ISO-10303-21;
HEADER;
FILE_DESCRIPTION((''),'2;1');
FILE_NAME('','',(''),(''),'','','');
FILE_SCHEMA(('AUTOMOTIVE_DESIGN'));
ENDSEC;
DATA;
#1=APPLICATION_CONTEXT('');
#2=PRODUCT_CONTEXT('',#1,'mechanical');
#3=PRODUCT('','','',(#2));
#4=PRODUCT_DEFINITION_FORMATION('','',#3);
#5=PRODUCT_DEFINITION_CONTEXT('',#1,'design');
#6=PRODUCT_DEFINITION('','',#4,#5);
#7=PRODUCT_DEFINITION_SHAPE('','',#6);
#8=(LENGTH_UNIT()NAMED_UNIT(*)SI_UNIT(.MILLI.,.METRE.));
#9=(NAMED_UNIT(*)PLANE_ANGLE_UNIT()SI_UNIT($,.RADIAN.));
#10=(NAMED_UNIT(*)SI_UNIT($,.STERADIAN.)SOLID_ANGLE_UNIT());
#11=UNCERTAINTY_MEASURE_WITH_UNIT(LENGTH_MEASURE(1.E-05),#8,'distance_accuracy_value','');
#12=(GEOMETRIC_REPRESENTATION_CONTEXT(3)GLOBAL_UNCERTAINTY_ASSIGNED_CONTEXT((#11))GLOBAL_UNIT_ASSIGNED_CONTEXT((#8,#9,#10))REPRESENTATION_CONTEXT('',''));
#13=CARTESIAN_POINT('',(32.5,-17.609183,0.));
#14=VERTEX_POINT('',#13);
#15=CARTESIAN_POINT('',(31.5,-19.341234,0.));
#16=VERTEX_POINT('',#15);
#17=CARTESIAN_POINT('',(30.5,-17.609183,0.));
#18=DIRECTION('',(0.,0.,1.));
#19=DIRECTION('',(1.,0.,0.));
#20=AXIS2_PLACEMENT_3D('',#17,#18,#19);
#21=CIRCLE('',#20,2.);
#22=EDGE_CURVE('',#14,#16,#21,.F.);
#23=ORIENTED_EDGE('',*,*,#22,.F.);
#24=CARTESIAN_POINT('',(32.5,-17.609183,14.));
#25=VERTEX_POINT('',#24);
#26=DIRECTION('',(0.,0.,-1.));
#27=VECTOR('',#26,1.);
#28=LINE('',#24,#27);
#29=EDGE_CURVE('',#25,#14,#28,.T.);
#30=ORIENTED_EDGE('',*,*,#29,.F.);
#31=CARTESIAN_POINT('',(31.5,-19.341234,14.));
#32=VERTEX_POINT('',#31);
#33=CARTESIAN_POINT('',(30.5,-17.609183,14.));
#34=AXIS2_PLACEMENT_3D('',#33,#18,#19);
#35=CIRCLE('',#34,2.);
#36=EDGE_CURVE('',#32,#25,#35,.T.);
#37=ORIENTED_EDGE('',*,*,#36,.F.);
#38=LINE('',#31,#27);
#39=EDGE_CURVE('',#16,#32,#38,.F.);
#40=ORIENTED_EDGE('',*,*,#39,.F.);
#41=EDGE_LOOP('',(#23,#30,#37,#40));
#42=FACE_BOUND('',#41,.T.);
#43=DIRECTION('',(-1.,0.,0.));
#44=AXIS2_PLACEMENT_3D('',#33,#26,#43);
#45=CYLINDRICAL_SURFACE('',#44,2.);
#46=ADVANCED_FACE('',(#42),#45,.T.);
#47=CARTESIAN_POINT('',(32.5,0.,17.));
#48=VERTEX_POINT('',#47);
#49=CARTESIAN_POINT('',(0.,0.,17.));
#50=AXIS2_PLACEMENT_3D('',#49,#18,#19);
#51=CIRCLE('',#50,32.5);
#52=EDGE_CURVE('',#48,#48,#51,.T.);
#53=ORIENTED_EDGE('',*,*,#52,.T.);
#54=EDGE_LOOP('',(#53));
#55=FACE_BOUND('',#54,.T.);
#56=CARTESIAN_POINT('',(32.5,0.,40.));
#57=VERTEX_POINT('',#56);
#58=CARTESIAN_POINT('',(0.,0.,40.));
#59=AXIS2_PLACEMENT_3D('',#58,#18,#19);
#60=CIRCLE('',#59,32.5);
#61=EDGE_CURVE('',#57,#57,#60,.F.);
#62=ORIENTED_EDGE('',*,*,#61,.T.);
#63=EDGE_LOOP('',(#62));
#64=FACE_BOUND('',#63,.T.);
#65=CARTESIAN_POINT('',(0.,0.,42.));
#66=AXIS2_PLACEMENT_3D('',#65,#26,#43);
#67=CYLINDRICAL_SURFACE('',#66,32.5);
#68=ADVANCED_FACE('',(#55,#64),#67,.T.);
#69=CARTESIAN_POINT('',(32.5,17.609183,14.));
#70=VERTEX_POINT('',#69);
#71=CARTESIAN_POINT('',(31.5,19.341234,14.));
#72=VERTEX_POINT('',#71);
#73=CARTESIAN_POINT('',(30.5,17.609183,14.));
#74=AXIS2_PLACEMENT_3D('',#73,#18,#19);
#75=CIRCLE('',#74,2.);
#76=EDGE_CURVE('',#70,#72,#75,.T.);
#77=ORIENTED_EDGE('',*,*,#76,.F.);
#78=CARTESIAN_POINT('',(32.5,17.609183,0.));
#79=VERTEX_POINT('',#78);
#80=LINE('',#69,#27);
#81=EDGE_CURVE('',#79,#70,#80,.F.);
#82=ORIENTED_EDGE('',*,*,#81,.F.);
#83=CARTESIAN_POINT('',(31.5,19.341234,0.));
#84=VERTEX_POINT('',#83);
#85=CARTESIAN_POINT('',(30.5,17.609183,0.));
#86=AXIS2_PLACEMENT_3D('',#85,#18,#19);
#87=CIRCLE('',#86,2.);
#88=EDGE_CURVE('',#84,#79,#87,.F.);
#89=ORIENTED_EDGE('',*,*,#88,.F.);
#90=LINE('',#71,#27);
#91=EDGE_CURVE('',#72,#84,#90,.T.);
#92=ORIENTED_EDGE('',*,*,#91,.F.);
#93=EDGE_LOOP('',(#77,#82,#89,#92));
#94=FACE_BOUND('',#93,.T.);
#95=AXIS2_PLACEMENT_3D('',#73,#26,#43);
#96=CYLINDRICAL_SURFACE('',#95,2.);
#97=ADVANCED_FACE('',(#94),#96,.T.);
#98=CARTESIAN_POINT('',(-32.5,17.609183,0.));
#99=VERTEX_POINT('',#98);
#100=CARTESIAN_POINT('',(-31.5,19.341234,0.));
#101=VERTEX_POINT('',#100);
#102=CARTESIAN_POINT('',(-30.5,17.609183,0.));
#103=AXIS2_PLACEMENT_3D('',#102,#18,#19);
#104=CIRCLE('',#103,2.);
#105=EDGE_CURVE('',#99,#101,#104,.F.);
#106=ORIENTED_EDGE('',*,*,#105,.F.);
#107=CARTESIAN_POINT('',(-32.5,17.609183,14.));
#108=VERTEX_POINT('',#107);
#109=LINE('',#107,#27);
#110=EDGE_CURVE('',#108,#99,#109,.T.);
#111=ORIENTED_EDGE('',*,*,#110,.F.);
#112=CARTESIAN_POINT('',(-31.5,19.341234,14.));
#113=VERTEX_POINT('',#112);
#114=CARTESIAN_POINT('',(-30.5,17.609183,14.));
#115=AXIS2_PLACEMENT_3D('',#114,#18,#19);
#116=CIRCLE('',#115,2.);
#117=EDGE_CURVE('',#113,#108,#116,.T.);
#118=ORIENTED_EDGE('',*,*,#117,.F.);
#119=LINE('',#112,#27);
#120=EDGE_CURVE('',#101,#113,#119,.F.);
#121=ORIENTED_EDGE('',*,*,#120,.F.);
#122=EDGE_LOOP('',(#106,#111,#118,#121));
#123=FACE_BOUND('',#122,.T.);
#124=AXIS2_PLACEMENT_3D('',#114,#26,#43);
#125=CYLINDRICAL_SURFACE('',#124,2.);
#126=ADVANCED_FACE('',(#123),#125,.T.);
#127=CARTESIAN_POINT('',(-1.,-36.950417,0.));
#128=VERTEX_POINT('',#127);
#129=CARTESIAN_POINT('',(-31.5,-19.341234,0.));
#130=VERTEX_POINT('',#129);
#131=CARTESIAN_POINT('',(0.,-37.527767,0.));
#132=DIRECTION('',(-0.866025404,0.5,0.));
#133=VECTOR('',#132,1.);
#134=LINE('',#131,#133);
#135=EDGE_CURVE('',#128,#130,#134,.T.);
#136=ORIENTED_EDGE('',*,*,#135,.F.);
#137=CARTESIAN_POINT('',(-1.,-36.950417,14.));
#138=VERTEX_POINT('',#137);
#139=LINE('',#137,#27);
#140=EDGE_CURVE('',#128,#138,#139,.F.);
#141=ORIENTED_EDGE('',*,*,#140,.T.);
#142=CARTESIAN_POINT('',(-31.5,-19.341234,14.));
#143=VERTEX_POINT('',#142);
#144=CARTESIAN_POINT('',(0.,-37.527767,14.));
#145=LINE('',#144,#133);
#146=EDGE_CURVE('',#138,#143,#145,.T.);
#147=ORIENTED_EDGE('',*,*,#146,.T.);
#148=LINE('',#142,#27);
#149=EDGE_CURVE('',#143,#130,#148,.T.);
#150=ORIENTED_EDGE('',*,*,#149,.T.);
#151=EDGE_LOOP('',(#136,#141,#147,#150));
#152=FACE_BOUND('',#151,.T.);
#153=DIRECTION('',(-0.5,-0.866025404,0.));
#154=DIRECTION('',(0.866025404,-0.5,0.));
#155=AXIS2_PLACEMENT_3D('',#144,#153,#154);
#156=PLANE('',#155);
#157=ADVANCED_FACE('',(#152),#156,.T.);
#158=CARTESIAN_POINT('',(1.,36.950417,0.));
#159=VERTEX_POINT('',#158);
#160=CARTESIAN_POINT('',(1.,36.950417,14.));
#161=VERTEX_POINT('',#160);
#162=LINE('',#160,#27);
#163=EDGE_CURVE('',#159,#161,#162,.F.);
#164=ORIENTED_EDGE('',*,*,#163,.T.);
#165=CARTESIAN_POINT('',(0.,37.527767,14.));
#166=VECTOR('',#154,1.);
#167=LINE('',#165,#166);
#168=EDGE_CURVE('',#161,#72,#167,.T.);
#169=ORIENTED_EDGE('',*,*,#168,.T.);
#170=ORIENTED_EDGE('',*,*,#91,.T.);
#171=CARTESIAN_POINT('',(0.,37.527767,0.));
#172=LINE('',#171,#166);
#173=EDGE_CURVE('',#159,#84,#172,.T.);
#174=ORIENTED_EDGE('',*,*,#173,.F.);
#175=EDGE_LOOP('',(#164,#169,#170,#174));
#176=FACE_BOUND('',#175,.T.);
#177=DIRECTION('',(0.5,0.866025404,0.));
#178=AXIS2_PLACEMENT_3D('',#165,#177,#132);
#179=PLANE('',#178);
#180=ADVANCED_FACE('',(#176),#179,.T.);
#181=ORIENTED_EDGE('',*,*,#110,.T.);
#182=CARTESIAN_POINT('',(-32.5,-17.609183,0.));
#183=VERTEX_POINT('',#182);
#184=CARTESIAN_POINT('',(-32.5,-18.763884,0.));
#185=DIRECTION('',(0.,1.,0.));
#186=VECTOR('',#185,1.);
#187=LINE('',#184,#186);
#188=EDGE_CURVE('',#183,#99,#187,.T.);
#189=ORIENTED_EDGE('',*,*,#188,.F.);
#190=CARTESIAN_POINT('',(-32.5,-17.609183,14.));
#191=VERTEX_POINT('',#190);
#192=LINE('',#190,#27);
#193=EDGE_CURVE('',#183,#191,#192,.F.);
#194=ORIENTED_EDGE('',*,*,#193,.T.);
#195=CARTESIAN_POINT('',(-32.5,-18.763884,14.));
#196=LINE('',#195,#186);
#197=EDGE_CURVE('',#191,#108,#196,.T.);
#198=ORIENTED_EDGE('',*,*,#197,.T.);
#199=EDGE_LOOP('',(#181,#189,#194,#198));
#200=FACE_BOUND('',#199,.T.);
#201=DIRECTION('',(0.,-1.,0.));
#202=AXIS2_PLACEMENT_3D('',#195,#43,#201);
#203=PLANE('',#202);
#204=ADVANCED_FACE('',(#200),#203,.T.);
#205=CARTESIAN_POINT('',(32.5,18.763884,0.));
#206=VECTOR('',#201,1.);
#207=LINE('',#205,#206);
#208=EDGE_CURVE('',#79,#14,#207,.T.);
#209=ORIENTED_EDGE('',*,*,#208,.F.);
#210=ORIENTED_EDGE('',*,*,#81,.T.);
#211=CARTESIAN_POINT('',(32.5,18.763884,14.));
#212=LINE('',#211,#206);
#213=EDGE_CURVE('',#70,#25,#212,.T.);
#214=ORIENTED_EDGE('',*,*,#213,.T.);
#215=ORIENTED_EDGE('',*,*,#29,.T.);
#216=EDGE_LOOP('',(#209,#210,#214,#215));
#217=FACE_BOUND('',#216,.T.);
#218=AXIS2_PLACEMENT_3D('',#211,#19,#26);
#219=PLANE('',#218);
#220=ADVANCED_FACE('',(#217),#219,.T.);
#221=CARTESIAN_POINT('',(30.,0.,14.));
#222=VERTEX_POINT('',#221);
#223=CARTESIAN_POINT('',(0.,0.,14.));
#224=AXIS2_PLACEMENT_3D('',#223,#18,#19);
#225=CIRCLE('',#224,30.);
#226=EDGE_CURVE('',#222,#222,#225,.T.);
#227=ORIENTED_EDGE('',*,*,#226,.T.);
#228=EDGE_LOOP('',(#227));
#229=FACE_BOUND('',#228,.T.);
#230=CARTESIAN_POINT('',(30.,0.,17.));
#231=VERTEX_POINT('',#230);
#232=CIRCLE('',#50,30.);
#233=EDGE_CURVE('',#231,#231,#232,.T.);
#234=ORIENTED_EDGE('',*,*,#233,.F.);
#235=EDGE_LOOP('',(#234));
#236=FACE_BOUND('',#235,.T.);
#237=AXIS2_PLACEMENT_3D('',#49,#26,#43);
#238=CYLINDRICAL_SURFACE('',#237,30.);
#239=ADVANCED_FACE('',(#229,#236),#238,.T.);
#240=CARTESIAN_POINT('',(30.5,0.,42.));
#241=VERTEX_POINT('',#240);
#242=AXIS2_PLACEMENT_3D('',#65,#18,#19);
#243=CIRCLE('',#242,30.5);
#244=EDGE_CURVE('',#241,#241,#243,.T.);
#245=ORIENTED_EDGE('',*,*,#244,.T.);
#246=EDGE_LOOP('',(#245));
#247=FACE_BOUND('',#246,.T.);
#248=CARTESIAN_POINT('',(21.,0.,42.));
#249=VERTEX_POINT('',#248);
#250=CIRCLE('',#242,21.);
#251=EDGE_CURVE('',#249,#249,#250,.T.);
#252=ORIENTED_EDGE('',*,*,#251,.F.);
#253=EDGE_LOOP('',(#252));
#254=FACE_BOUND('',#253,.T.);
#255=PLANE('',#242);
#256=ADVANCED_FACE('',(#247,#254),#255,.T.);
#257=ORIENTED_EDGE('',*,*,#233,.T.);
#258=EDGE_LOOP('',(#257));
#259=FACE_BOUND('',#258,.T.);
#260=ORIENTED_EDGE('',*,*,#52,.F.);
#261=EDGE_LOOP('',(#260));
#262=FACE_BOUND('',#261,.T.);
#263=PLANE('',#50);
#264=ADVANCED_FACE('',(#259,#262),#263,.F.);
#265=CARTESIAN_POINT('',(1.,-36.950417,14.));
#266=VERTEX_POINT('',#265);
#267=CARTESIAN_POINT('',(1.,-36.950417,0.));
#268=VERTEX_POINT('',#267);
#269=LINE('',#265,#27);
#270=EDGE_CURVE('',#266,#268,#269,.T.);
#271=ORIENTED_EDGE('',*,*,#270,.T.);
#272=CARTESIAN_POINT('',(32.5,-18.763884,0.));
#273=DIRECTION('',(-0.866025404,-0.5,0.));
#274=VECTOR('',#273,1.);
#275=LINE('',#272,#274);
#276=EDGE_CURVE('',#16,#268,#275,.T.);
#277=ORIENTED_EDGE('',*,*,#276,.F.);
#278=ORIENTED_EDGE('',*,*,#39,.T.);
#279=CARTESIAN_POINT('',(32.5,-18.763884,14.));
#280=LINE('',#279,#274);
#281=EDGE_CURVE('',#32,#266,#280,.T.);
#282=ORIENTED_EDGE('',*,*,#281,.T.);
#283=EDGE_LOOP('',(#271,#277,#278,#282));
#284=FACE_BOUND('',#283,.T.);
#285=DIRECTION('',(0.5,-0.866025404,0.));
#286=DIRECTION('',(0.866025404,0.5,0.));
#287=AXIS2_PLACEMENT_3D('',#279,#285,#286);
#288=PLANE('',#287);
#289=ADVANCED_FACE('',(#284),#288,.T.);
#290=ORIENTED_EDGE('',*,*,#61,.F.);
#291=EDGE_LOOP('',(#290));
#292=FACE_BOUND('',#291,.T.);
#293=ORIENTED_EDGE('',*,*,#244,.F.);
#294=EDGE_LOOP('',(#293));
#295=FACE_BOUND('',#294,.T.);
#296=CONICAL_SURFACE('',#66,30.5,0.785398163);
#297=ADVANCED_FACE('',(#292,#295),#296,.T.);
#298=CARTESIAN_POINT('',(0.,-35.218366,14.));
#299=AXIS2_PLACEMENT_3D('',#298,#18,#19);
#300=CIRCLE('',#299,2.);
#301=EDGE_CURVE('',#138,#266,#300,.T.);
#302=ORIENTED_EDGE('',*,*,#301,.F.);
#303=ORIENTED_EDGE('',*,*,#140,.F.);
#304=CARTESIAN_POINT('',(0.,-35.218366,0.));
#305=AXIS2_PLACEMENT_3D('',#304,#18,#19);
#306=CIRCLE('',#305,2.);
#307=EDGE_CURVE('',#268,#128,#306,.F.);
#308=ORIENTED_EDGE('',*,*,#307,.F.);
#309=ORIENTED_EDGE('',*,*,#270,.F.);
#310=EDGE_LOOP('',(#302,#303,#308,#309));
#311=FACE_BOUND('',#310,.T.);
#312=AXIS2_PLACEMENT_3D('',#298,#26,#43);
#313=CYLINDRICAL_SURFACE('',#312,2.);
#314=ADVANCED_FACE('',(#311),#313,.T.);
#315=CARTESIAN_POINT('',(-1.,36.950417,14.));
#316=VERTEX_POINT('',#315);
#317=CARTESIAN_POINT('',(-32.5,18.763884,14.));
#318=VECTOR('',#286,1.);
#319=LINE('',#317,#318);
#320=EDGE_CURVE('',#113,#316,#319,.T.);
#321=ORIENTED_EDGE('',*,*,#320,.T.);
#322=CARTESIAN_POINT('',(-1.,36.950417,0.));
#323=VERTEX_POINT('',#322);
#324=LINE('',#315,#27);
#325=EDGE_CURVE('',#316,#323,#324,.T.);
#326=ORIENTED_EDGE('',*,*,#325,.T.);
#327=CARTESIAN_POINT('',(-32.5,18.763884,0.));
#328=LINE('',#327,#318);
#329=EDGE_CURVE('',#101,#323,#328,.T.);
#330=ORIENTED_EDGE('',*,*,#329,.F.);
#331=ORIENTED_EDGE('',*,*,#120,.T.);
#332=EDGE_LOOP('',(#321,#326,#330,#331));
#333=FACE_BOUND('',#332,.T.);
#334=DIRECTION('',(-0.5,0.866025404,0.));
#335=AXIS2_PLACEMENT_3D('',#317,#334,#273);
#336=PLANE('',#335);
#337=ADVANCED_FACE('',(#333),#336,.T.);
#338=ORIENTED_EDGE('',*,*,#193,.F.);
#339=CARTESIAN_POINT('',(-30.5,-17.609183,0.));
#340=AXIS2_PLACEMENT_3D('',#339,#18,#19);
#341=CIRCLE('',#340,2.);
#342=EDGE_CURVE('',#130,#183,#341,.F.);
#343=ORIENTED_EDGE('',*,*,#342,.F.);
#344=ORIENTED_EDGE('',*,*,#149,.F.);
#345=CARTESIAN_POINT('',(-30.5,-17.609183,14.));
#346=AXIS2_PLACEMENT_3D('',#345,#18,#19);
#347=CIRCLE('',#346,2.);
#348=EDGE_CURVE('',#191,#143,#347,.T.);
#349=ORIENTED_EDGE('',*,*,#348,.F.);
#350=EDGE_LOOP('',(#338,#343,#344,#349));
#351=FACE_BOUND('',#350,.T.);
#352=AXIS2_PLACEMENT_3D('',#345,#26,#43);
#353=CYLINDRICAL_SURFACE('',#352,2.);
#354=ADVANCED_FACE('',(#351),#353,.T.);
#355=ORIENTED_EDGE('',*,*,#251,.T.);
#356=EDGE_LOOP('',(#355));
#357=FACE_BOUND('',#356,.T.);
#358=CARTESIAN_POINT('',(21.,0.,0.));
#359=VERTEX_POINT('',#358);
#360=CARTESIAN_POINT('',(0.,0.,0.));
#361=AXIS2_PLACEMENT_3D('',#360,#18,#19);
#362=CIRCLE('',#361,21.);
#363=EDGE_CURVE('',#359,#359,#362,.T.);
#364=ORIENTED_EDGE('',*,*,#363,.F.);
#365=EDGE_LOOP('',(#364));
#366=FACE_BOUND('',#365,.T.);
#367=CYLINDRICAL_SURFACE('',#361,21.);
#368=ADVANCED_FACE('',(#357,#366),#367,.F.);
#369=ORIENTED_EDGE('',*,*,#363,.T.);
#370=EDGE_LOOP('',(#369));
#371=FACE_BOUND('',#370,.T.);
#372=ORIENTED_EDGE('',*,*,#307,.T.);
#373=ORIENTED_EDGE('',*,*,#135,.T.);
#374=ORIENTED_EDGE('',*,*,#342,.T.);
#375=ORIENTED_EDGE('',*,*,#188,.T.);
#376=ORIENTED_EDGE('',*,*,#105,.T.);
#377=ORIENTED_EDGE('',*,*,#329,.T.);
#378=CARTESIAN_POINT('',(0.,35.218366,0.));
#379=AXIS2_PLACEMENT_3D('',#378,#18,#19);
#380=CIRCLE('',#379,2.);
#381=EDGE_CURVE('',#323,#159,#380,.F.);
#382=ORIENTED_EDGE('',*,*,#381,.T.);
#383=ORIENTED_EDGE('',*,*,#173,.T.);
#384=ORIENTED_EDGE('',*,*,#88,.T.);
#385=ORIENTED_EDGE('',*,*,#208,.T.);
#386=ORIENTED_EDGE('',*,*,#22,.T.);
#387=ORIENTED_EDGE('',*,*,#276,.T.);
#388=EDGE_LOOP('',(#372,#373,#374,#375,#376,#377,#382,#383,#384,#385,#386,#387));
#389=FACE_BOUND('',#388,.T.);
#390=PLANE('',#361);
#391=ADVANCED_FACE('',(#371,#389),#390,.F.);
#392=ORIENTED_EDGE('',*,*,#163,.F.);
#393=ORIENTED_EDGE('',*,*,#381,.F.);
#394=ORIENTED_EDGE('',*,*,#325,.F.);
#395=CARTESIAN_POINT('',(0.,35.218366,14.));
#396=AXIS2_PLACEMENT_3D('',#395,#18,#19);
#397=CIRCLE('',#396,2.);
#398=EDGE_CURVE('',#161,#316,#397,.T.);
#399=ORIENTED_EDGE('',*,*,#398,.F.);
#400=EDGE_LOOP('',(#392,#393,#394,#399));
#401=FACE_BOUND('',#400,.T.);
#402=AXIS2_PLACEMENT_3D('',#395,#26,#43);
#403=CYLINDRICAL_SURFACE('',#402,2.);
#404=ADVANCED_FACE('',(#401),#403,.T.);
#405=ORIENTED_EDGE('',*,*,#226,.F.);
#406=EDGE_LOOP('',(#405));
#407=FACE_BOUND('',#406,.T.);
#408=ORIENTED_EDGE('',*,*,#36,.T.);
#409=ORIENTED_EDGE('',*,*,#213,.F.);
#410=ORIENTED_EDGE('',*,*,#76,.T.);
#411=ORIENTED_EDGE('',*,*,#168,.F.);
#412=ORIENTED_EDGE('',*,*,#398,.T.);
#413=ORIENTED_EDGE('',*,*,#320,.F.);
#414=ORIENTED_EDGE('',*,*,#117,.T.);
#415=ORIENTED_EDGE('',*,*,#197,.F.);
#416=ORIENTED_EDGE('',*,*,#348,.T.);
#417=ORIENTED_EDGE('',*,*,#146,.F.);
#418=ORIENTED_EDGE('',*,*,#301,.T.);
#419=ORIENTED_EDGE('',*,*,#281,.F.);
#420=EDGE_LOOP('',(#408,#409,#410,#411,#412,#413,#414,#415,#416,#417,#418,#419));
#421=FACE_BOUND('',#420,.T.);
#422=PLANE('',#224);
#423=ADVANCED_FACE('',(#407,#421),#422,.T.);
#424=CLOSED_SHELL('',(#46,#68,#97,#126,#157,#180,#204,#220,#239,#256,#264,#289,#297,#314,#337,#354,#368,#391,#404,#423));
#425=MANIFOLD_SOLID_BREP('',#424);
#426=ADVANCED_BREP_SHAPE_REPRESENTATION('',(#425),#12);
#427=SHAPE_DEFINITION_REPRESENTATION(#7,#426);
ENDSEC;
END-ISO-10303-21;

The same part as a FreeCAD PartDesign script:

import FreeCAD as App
import Part
import Sketcher
Q = App.Units.Quantity


def edges_at(feature, points):
    """Names of the edges that pass closest to the given points."""
    edges = feature.Shape.Edges
    near = lambda p: min(range(len(edges)), key=lambda i: edges[i].distToShape(Part.Vertex(*p))[0])
    return sorted({f"Edge{near(p) + 1}" for p in points})


def add_polygon(sketch, points):
    """Adds a closed chain of lines whose ends are joined by coincident constraints."""
    first, n = sketch.GeometryCount, len(points)
    for a, b in zip(points, points[1:] + points[:1]):
        sketch.addGeometry(Part.LineSegment(App.Vector(*a, 0), App.Vector(*b, 0)), False)
    for i in range(n):
        sketch.addConstraint(Sketcher.Constraint("Coincident", first + i, 2, first + (i + 1) % n, 1))

doc = App.newDocument("Part")
params = doc.addObject("Spreadsheet::Sheet", "Params")
for row, (alias, value) in enumerate([
    ("sketch1_diameter", "65 mm"),
    ("pad1_length", "42 mm"),
    ("sketch2_diameter", "65 mm"),
    ("sketch2_diameter2", "60 mm"),
    ("pocket1_length", "3 mm"),
    ("pad2_length", "14 mm"),
    ("fillet_radius", "2 mm"),
    ("chamfer_size", "2 mm"),
    ("sketch4_diameter", "42 mm"),
], start=1):
    params.set(f"A{row}", alias)
    params.set(f"B{row}", "=" + value)
    params.setAlias(f"B{row}", alias)

body = doc.addObject("PartDesign::Body", "Body")

# Sketch on XY plane
sketch1 = body.newObject("Sketcher::SketchObject", "Sketch")
sketch1.AttachmentSupport = (doc.getObject("XY_Plane"), [""])
sketch1.MapMode = "FlatFace"
sketch1.addGeometry(Part.Circle(App.Vector(0, 0, 0), App.Vector(0, 0, 1), 32), False)
sketch1.addConstraint([
    Sketcher.Constraint("Coincident", 0, 3, -1, 1),
    Sketcher.Constraint("Diameter", 0, 65.0),
])
sketch1.setExpression("Constraints[1]", "Params.sketch1_diameter")
pad1 = body.newObject("PartDesign::Pad", "Pad")
pad1.Profile = sketch1
pad1.setExpression("Length", "Params.pad1_length")

# Sketch on XY plane
sketch2 = body.newObject("Sketcher::SketchObject", "Sketch001")
sketch2.AttachmentSupport = (doc.getObject("XY_Plane"), [""])
sketch2.MapMode = "FlatFace"
sketch2.AttachmentOffset = App.Placement(App.Vector(0, 0, 14), App.Rotation())
sketch2.addGeometry([
    Part.Circle(App.Vector(0, 0, 0), App.Vector(0, 0, 1), 32),
    Part.Circle(App.Vector(0, 0, 0), App.Vector(0, 0, 1), 30),
], False)
sketch2.addConstraint([
    Sketcher.Constraint("Coincident", 0, 3, -1, 1),
    Sketcher.Constraint("Coincident", 1, 3, -1, 1),
    Sketcher.Constraint("Diameter", 0, 65.0),
    Sketcher.Constraint("Diameter", 1, 60.0),
])
sketch2.setExpression("Constraints[2]", "Params.sketch2_diameter")
sketch2.setExpression("Constraints[3]", "Params.sketch2_diameter2")
pocket1 = body.newObject("PartDesign::Pocket", "Pocket")
pocket1.Profile = sketch2
pocket1.setExpression("Length", "Params.pocket1_length")
pocket1.Reversed = True

# Sketch on XY plane
sketch3 = body.newObject("Sketcher::SketchObject", "Sketch002")
sketch3.AttachmentSupport = (doc.getObject("XY_Plane"), [""])
sketch3.MapMode = "FlatFace"
add_polygon(sketch3, [(0, 38), (32, 19), (32, -19), (0, -38), (-32, -19), (-32, 19)])  # lines 0-5
sketch3.addConstraint([
    Sketcher.Constraint("Vertical", 1),
    Sketcher.Constraint("Vertical", 4),
    Sketcher.Constraint("Symmetric", 0, 2, 3, 2, -1, 1),
    Sketcher.Constraint("Symmetric", 2, 2, 5, 2, -1, 1),
    Sketcher.Constraint("PointOnObject", 2, 2, -2),
    Sketcher.Constraint("Parallel", 2, 5),
    Sketcher.Constraint("Horizontal", 1, 2, 3, 2),
    Sketcher.Constraint("Angle", 0, Q("-30 deg")),
    Sketcher.Constraint("DistanceX", 3, 2, 1, 2, 65.0),
    Sketcher.Constraint("DistanceY", 1, 2, 1, 1, 37.527767),
])
pad2 = body.newObject("PartDesign::Pad", "Pad001")
pad2.Profile = sketch3
pad2.setExpression("Length", "Params.pad2_length")
doc.recompute()

fillet = body.newObject("PartDesign::Fillet", "Fillet")
fillet.Base = (pad2, edges_at(pad2, [
    (0, 37.528, 7),
    (-32.5, 18.764, 7),
    (-32.5, -18.764, 7),
    (0, -37.528, 7),
    (32.5, -18.764, 7),
    (32.5, 18.764, 7),
]))
fillet.setExpression("Radius", "Params.fillet_radius")
doc.recompute()

chamfer = body.newObject("PartDesign::Chamfer", "Chamfer")
chamfer.Base = (fillet, edges_at(fillet, [(-32.5, 0, 42)]))
chamfer.setExpression("Size", "Params.chamfer_size")

# Sketch on XY plane
sketch4 = body.newObject("Sketcher::SketchObject", "Sketch003")
sketch4.AttachmentSupport = (doc.getObject("XY_Plane"), [""])
sketch4.MapMode = "FlatFace"
sketch4.AttachmentOffset = App.Placement(App.Vector(0, 0, 42), App.Rotation())
sketch4.addGeometry(Part.Circle(App.Vector(0, 0, 0), App.Vector(0, 0, 1), 21), False)
sketch4.addConstraint([
    Sketcher.Constraint("Coincident", 0, 3, -1, 1),
    Sketcher.Constraint("Diameter", 0, 42.0),
])
sketch4.setExpression("Constraints[1]", "Params.sketch4_diameter")
pocket2 = body.newObject("PartDesign::Pocket", "Pocket001")
pocket2.Profile = sketch4
pocket2.Type = "ThroughAll"

doc.recompute()
